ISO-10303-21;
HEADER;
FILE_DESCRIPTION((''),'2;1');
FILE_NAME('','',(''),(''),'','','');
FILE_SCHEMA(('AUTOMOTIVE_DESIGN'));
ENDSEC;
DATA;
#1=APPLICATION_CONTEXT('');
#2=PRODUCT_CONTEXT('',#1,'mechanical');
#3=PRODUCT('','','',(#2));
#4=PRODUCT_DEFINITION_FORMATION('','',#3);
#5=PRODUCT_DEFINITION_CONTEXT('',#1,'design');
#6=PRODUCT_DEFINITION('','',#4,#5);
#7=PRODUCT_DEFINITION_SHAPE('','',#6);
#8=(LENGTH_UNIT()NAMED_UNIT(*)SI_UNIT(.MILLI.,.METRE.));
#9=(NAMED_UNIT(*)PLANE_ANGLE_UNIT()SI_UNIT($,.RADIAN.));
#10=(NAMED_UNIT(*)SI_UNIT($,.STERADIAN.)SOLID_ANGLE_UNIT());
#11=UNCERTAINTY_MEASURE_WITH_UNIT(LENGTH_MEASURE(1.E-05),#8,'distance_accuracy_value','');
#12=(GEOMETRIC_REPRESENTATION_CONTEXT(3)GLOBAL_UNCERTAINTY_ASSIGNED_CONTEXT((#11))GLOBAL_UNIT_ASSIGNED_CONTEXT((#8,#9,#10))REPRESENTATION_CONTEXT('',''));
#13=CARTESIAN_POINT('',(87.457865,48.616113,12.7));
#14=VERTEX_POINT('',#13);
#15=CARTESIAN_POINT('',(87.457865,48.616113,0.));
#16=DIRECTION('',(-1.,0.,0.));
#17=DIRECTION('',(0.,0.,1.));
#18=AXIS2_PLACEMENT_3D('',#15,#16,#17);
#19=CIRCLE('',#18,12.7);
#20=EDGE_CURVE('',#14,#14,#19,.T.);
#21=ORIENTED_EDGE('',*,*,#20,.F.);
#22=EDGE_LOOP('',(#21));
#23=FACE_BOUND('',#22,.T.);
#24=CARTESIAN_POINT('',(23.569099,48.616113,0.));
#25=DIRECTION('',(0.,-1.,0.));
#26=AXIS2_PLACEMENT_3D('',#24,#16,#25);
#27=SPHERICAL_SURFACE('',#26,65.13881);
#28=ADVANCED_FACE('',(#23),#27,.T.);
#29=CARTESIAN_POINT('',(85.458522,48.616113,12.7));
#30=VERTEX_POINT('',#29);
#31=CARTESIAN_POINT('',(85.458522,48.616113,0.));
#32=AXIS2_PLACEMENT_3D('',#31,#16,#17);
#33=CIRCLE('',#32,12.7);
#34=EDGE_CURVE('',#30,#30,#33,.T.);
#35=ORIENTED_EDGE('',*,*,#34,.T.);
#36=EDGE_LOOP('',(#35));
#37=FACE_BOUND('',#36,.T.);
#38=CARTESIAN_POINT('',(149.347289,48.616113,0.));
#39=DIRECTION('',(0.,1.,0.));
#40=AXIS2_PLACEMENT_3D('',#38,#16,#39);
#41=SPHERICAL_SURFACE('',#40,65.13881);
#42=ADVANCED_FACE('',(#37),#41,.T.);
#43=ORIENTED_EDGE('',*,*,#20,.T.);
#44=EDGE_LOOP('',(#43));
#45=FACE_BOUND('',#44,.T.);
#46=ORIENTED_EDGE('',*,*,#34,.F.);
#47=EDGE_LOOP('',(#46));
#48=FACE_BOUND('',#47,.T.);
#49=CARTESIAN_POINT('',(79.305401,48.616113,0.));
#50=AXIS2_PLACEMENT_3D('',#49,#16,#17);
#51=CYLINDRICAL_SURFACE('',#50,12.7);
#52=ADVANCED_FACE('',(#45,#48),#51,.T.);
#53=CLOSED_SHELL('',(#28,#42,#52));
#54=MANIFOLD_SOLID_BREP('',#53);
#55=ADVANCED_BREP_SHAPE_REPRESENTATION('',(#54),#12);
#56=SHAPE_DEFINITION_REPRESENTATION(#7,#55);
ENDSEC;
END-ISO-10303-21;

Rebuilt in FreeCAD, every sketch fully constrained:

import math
import FreeCAD as App
import Part
import Sketcher
from FreeCAD import Vector

doc = App.newDocument("Part")
params = doc.addObject("Spreadsheet::Sheet", "Params")
for row, (alias, value) in enumerate([
    ("revolution_angle", "360 deg"),
], start=1):
    params.set(f"A{row}", alias)
    params.set(f"B{row}", "=" + value)
    params.setAlias(f"B{row}", alias)

body = doc.addObject("PartDesign::Body", "Body")

sketch1 = body.newObject("Sketcher::SketchObject", "Sketch")
sketch1.AttachmentSupport = (doc.getObject("XY_Plane"), [""])
sketch1.MapMode = "FlatFace"
sketch1.addGeometry([
    Part.LineSegment(Vector(87.5, 61.3, 0), Vector(85.5, 61.3, 0)),
    Part.ArcOfCircle(Part.Circle(Vector(149.3, 48.6, 0), Vector(0, 0, 1), 65.1), math.radians(168.76), math.radians(180)),
    Part.LineSegment(Vector(84.2, 48.6, 0), Vector(88.7, 48.6, 0)),
    Part.ArcOfCircle(Part.Circle(Vector(23.6, 48.6, 0), Vector(0, 0, 1), 65.1), math.radians(0), math.radians(11.24)),
], False)
sketch1.addGeometry(Part.LineSegment(Vector(23.6, 48.6, 0), Vector(149.3, 48.6, 0)), True)
sketch1.addConstraint([
    Sketcher.Constraint("Coincident", 0, 2, 1, 1),
    Sketcher.Constraint("Coincident", 1, 2, 2, 1),
    Sketcher.Constraint("Coincident", 2, 2, 3, 1),
    Sketcher.Constraint("Coincident", 3, 2, 0, 1),
    Sketcher.Constraint("Horizontal", 0),
    Sketcher.Constraint("Horizontal", 2),
    Sketcher.Constraint("Horizontal", 4),
    Sketcher.Constraint("Coincident", 4, 1, 3, 3),
    Sketcher.Constraint("Coincident", 4, 2, 1, 3),
    Sketcher.Constraint("Equal", 1, 3),
    Sketcher.Constraint("Horizontal", 3, 3, 1, 2),
    Sketcher.Constraint("DistanceY", 3, 3, 0, 2, 12.7),
    Sketcher.Constraint("Radius", 1, 65.13881),
    Sketcher.Constraint("DistanceX", 2, 1, 2, 2, 4.499429),
    Sketcher.Constraint("DistanceX", -1, 1, 3, 3, 23.569099),
    Sketcher.Constraint("DistanceY", -1, 1, 1, 3, 48.616113),
])
revolution = body.newObject("PartDesign::Revolution", "Revolution")
revolution.Profile = sketch1
revolution.ReferenceAxis = (sketch1, ["Axis0"])
revolution.setExpression("Angle", "Params.revolution_angle")

doc.recompute()
